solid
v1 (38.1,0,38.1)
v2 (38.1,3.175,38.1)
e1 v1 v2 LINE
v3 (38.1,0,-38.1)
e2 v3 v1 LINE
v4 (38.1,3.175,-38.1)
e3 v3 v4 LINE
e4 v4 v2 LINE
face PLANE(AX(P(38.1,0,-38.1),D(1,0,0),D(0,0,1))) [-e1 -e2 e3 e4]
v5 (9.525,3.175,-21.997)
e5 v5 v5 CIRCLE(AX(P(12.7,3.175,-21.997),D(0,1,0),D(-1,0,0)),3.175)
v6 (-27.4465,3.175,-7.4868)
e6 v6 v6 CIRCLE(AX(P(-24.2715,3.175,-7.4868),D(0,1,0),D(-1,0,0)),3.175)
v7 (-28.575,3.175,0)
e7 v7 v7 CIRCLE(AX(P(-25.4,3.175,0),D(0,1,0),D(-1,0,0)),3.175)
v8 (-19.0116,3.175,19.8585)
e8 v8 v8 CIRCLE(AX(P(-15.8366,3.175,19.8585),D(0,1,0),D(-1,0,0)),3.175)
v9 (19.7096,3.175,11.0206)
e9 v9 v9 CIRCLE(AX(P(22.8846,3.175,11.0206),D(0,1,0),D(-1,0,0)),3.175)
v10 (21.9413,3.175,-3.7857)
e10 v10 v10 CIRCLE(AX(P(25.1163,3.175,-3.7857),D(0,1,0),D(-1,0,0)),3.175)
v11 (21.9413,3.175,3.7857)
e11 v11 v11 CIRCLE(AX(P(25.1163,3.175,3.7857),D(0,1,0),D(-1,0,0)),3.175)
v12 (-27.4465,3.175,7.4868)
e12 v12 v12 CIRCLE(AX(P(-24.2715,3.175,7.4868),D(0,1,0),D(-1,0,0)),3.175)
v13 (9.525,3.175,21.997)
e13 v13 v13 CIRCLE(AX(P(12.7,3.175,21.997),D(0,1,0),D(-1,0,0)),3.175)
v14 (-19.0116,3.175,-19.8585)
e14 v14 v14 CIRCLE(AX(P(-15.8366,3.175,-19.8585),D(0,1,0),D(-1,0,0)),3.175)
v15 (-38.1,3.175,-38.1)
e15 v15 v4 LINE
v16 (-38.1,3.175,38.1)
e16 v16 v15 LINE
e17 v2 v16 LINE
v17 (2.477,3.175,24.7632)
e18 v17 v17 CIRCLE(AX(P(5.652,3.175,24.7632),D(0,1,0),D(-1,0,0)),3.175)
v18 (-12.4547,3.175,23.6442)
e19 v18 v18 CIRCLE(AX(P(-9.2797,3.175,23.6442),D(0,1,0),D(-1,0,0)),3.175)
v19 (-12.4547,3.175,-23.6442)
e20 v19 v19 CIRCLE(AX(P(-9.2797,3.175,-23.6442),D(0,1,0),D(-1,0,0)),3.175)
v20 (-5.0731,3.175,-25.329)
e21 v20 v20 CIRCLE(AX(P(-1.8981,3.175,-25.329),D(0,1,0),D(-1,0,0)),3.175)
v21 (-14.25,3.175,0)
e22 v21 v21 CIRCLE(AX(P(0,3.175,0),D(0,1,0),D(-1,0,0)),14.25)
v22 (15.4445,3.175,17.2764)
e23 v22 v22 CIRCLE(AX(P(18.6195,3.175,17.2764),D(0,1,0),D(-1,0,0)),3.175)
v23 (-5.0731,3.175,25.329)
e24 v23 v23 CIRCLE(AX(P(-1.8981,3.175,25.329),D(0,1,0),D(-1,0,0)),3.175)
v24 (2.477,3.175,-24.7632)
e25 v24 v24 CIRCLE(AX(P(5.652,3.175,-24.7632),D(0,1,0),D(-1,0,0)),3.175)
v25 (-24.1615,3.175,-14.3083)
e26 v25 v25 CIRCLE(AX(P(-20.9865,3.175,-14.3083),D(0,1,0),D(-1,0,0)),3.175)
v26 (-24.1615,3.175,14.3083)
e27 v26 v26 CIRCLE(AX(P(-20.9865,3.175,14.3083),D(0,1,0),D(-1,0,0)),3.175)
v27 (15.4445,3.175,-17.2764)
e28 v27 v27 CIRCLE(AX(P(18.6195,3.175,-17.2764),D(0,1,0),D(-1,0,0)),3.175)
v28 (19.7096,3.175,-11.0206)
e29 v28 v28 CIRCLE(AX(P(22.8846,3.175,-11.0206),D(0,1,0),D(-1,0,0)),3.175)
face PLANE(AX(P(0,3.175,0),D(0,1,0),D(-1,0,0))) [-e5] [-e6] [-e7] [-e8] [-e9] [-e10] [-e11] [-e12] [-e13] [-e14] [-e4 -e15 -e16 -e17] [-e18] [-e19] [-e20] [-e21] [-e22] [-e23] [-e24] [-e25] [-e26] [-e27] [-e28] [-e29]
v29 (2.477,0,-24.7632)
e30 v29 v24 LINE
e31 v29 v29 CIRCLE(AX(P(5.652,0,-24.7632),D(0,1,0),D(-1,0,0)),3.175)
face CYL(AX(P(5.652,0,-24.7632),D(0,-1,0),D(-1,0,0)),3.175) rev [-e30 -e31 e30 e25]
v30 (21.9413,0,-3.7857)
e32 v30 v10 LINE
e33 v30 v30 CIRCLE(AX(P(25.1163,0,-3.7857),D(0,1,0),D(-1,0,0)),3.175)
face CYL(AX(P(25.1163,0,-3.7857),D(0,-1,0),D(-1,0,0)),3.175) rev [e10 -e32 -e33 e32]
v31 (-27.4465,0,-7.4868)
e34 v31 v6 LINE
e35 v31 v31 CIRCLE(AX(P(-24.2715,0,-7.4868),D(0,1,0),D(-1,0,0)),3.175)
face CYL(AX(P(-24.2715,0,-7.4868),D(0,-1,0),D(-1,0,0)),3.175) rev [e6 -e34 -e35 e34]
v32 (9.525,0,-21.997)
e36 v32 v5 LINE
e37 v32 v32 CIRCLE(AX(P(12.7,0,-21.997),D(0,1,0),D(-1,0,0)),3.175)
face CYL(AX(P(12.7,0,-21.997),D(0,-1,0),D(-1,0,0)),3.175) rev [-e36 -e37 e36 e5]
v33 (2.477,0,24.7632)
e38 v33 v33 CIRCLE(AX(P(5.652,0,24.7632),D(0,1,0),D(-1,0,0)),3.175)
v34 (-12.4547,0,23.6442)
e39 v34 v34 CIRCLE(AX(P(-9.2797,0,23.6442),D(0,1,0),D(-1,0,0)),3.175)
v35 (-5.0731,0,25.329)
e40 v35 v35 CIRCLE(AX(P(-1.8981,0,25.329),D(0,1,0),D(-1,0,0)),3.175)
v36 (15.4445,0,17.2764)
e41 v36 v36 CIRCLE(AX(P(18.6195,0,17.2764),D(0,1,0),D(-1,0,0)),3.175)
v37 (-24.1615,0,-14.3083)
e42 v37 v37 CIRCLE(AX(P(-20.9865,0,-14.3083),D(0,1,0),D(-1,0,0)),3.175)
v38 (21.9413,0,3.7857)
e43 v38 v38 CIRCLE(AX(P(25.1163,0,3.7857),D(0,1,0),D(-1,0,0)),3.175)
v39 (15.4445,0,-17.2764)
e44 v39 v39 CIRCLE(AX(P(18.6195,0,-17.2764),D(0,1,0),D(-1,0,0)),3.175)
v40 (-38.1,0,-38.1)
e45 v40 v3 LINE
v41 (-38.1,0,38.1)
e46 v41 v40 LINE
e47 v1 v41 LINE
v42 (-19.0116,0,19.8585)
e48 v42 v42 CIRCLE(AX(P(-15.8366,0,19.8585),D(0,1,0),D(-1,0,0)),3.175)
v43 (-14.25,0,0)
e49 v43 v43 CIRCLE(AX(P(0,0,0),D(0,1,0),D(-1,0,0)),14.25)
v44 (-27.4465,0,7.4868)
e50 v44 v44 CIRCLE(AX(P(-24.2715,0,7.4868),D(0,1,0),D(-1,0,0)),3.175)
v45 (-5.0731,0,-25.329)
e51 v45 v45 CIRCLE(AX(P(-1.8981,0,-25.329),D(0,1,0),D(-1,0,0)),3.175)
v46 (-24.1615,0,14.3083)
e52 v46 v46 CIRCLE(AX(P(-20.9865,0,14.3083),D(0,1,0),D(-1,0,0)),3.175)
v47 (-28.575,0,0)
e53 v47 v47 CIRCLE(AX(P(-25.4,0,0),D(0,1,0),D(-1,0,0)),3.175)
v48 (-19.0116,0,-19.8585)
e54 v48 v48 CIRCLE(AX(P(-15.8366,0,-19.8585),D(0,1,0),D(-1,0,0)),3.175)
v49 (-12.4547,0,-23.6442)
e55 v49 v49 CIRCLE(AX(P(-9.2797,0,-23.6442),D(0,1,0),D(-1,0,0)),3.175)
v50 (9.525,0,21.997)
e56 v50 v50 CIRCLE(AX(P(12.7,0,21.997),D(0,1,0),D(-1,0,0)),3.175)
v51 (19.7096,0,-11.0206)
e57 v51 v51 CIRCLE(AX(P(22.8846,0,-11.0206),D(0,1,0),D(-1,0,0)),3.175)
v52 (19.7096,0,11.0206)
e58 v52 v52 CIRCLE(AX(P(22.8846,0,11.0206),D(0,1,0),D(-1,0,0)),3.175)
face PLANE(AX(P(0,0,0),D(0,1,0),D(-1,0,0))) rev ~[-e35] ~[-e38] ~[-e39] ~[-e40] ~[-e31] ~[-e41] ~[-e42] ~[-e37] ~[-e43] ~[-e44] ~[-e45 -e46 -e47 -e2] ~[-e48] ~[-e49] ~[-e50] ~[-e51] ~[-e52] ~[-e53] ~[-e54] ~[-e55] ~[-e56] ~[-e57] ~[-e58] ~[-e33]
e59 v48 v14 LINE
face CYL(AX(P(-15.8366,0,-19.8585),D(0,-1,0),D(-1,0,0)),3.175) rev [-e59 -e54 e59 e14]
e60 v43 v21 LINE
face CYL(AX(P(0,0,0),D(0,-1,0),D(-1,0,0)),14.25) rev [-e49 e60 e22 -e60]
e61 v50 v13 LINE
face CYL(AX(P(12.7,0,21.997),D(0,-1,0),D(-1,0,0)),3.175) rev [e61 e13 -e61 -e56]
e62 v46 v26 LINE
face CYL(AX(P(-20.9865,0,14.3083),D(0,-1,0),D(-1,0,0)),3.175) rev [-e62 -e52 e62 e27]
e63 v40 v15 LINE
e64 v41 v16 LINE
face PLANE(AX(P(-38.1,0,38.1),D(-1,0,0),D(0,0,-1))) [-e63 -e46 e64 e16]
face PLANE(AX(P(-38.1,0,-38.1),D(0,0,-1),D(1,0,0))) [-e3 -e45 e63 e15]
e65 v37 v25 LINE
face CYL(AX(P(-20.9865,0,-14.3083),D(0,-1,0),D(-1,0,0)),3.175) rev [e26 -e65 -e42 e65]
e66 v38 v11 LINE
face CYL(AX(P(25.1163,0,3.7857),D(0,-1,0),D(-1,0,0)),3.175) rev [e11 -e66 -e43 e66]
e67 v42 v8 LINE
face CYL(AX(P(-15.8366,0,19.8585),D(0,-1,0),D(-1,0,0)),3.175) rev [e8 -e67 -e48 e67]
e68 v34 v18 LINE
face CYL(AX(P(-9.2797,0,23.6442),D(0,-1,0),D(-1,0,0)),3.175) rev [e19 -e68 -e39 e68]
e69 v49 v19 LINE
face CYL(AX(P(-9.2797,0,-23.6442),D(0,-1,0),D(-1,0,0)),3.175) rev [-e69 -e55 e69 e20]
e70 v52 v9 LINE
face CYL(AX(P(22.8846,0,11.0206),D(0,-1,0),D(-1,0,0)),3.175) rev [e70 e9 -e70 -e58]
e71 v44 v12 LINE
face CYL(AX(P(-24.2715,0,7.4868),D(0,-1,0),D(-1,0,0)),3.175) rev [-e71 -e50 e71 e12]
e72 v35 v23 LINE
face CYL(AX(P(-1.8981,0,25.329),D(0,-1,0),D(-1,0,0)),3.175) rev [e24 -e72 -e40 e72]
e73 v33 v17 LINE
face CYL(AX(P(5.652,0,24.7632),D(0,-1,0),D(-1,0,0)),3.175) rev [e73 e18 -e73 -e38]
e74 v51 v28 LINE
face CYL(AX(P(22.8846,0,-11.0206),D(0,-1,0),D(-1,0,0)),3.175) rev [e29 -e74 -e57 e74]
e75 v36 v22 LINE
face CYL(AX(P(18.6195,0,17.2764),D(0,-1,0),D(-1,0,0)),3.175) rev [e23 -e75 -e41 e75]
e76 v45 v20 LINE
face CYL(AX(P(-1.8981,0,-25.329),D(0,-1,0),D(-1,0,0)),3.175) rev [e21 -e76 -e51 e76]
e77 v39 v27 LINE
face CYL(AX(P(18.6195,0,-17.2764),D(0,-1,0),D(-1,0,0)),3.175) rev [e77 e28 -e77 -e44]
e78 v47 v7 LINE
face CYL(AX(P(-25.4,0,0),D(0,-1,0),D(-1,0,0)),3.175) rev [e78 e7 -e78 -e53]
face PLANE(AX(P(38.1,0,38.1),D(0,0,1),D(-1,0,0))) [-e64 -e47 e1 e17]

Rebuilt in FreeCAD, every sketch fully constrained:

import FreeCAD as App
import Part
import Sketcher
Q = App.Units.Quantity


def add_polygon(sketch, points):
    """Adds a closed chain of lines whose ends are joined by coincident constraints."""
    first, n = sketch.GeometryCount, len(points)
    for a, b in zip(points, points[1:] + points[:1]):
        sketch.addGeometry(Part.LineSegment(App.Vector(*a, 0), App.Vector(*b, 0)), False)
    for i in range(n):
        sketch.addConstraint(Sketcher.Constraint("Coincident", first + i, 2, first + (i + 1) % n, 1))

doc = App.newDocument("Part")
body = doc.addObject("PartDesign::Body", "Body")

# Sketch on XZ plane
sketch1 = body.newObject("Sketcher::SketchObject", "Sketch")
sketch1.AttachmentSupport = (doc.getObject("XZ_Plane"), [""])
sketch1.MapMode = "FlatFace"
add_polygon(sketch1, [(-38.1, 38.1), (38.1, 38.1), (38.1, -38.1), (-38.1, -38.1)])  # lines 0-3
sketch1.addGeometry(Part.Circle(App.Vector(12.7, -21.997, 0), App.Vector(0, 0, 1), 3.175), False)  # 4
sketch1.addGeometry(Part.Circle(App.Vector(5.652, -24.7632, 0), App.Vector(0, 0, 1), 3.175), False)  # 5
sketch1.addGeometry(Part.Circle(App.Vector(22.8846, -11.0206, 0), App.Vector(0, 0, 1), 3.175), False)  # 6
sketch1.addGeometry(Part.Circle(App.Vector(25.1163, -3.7857, 0), App.Vector(0, 0, 1), 3.175), False)  # 7
sketch1.addGeometry(Part.Circle(App.Vector(18.6195, -17.2764, 0), App.Vector(0, 0, 1), 3.175), False)  # 8
sketch1.addGeometry(Part.Circle(App.Vector(-1.8981, -25.329, 0), App.Vector(0, 0, 1), 3.175), False)  # 9
sketch1.addGeometry(Part.Circle(App.Vector(-9.2797, -23.6442, 0), App.Vector(0, 0, 1), 3.175), False)  # 10
sketch1.addGeometry(Part.Circle(App.Vector(-15.8366, -19.8585, 0), App.Vector(0, 0, 1), 3.175), False)  # 11
sketch1.addGeometry(Part.Circle(App.Vector(-20.9865, -14.3083, 0), App.Vector(0, 0, 1), 3.175), False)  # 12
sketch1.addGeometry(Part.Circle(App.Vector(-24.2715, -7.4868, 0), App.Vector(0, 0, 1), 3.175), False)  # 13
sketch1.addGeometry(Part.Circle(App.Vector(25.1163, 3.7857, 0), App.Vector(0, 0, 1), 3.175), False)  # 14
sketch1.addGeometry(Part.Circle(App.Vector(22.8846, 11.0206, 0), App.Vector(0, 0, 1), 3.175), False)  # 15
sketch1.addGeometry(Part.Circle(App.Vector(18.6195, 17.2764, 0), App.Vector(0, 0, 1), 3.175), False)  # 16
sketch1.addGeometry(Part.Circle(App.Vector(12.7, 21.997, 0), App.Vector(0, 0, 1), 3.175), False)  # 17
sketch1.addGeometry(Part.Circle(App.Vector(5.652, 24.7632, 0), App.Vector(0, 0, 1), 3.175), False)  # 18
sketch1.addGeometry(Part.Circle(App.Vector(0, 0, 0), App.Vector(0, 0, 1), 14.25), False)  # 19
sketch1.addGeometry(Part.Circle(App.Vector(-25.4, 0, 0), App.Vector(0, 0, 1), 3.175), False)  # 20
sketch1.addGeometry(Part.Circle(App.Vector(-24.2715, 7.4868, 0), App.Vector(0, 0, 1), 3.175), False)  # 21
sketch1.addGeometry(Part.Circle(App.Vector(-20.9865, 14.3083, 0), App.Vector(0, 0, 1), 3.175), False)  # 22
sketch1.addGeometry(Part.Circle(App.Vector(-9.2797, 23.6442, 0), App.Vector(0, 0, 1), 3.175), False)  # 23
sketch1.addGeometry(Part.Circle(App.Vector(-1.8981, 25.329, 0), App.Vector(0, 0, 1), 3.175), False)  # 24
sketch1.addGeometry(Part.Circle(App.Vector(-15.8366, 19.8585, 0), App.Vector(0, 0, 1), 3.175), False)  # 25
sketch1.addConstraint(Sketcher.Constraint("Horizontal", 0))
sketch1.addConstraint(Sketcher.Constraint("Vertical", 1))
sketch1.addConstraint(Sketcher.Constraint("Horizontal", 2))
sketch1.addConstraint(Sketcher.Constraint("Vertical", 3))
sketch1.addConstraint(Sketcher.Constraint("Coincident", 19, 3, -1, 1))
sketch1.addConstraint(Sketcher.Constraint("Equal", 4, 5))
sketch1.addConstraint(Sketcher.Constraint("Equal", 5, 6))
sketch1.addConstraint(Sketcher.Constraint("Equal", 6, 7))
sketch1.addConstraint(Sketcher.Constraint("Equal", 7, 8))
sketch1.addConstraint(Sketcher.Constraint("Equal", 8, 9))
sketch1.addConstraint(Sketcher.Constraint("Equal", 9, 10))
sketch1.addConstraint(Sketcher.Constraint("Equal", 10, 11))
sketch1.addConstraint(Sketcher.Constraint("Equal", 11, 12))
sketch1.addConstraint(Sketcher.Constraint("Equal", 12, 13))
sketch1.addConstraint(Sketcher.Constraint("Equal", 13, 14))
sketch1.addConstraint(Sketcher.Constraint("Equal", 14, 15))
sketch1.addConstraint(Sketcher.Constraint("Equal", 15, 16))
sketch1.addConstraint(Sketcher.Constraint("Equal", 16, 17))
sketch1.addConstraint(Sketcher.Constraint("Equal", 17, 18))
sketch1.addConstraint(Sketcher.Constraint("Equal", 18, 20))
sketch1.addConstraint(Sketcher.Constraint("Equal", 20, 21))
sketch1.addConstraint(Sketcher.Constraint("Equal", 21, 22))
sketch1.addConstraint(Sketcher.Constraint("Equal", 22, 23))
sketch1.addConstraint(Sketcher.Constraint("Equal", 23, 24))
sketch1.addConstraint(Sketcher.Constraint("Equal", 24, 25))
sketch1.addConstraint(Sketcher.Constraint("Symmetric", 0, 2, 2, 2, -1, 1))
sketch1.addConstraint(Sketcher.Constraint("Symmetric", 7, 3, 14, 3, -1))
sketch1.addConstraint(Sketcher.Constraint("Symmetric", 6, 3, 15, 3, -1))
sketch1.addConstraint(Sketcher.Constraint("Symmetric", 8, 3, 16, 3, -1))
sketch1.addConstraint(Sketcher.Constraint("Symmetric", 4, 3, 17, 3, -1))
sketch1.addConstraint(Sketcher.Constraint("Symmetric", 5, 3, 18, 3, -1))
sketch1.addConstraint(Sketcher.Constraint("Symmetric", 13, 3, 21, 3, -1))
sketch1.addConstraint(Sketcher.Constraint("Symmetric", 12, 3, 22, 3, -1))
sketch1.addConstraint(Sketcher.Constraint("Symmetric", 10, 3, 23, 3, -1))
sketch1.addConstraint(Sketcher.Constraint("Symmetric", 9, 3, 24, 3, -1))
sketch1.addConstraint(Sketcher.Constraint("Symmetric", 11, 3, 25, 3, -1))
sketch1.addConstraint(Sketcher.Constraint("PointOnObject", 20, 3, -1))
sketch1.addConstraint(Sketcher.Constraint("Equal", 2, 1))
sketch1.addConstraint(Sketcher.Constraint("Diameter", 4, Q("0.25 in")))
sketch1.addConstraint(Sketcher.Constraint("DistanceX", 0, 1, 0, 2, Q("3 in")))
sketch1.addConstraint(Sketcher.Constraint("Diameter", 19, Q("28.5 mm")))
sketch1.addConstraint(Sketcher.Constraint("DistanceX", 20, 3, -1, 1, Q("1 in")))
sketch1.addConstraint(Sketcher.Constraint("DistanceX", 17, 3, 0, 2, Q("1 in")))
sketch1.addConstraint(Sketcher.Constraint("DistanceY", 10, 3, 6, 3, Q("0.497 in")))
sketch1.addConstraint(Sketcher.Constraint("DistanceX", 11, 3, 5, 3, Q("0.846 in")))
sketch1.addConstraint(Sketcher.Constraint("DistanceY", 9, 3, -1, 1, Q("0.9972 in")))
sketch1.addConstraint(Sketcher.Constraint("DistanceX", 11, 3, -1, 1, Q("0.6235 in")))
sketch1.addConstraint(Sketcher.Constraint("DistanceY", 5, 3, 4, 3, Q("0.1089 in")))
sketch1.addConstraint(Sketcher.Constraint("DistanceX", 5, 3, 7, 3, Q("0.7663 in")))
sketch1.addConstraint(Sketcher.Constraint("DistanceY", 8, 3, 6, 3, Q("0.2463 in")))
sketch1.addConstraint(Sketcher.Constraint("DistanceX", 9, 3, 6, 3, Q("0.9757 in")))
sketch1.addConstraint(Sketcher.Constraint("DistanceX", 10, 3, 8, 3, Q("1.0984 in")))
sketch1.addConstraint(Sketcher.Constraint("DistanceX", 10, 3, 6, 3, Q("1.2663 in")))
sketch1.addConstraint(Sketcher.Constraint("DistanceY", 5, 3, 11, 3, Q("0.1931 in")))
sketch1.addConstraint(Sketcher.Constraint("DistanceY", 11, 3, 12, 3, Q("0.2185 in")))
sketch1.addConstraint(Sketcher.Constraint("DistanceX", 12, 3, 10, 3, Q("0.4609 in")))
sketch1.addConstraint(Sketcher.Constraint("DistanceX", 13, 3, 5, 3, Q("1.1781 in")))
sketch1.addConstraint(Sketcher.Constraint("DistanceY", 4, 3, 15, 3, Q("1.2999 in")))
sketch1.addConstraint(Sketcher.Constraint("DistanceY", 13, 3, 21, 3, Q("0.5895 in")))
sketch1.addConstraint(Sketcher.Constraint("DistanceY", 4, 3, -1, 1, Q("21.997 mm")))
sketch1.addConstraint(Sketcher.Constraint("DistanceX", -1, 1, 6, 3, Q("22.8846 mm")))
sketch1.addConstraint(Sketcher.Constraint("DistanceY", 7, 3, -1, 1, Q("3.7857 mm")))
pad1 = body.newObject("PartDesign::Pad", "Pad")
pad1.Profile = sketch1
pad1.Length = Q("0.125 in")
pad1.Reversed = True

doc.recompute()
